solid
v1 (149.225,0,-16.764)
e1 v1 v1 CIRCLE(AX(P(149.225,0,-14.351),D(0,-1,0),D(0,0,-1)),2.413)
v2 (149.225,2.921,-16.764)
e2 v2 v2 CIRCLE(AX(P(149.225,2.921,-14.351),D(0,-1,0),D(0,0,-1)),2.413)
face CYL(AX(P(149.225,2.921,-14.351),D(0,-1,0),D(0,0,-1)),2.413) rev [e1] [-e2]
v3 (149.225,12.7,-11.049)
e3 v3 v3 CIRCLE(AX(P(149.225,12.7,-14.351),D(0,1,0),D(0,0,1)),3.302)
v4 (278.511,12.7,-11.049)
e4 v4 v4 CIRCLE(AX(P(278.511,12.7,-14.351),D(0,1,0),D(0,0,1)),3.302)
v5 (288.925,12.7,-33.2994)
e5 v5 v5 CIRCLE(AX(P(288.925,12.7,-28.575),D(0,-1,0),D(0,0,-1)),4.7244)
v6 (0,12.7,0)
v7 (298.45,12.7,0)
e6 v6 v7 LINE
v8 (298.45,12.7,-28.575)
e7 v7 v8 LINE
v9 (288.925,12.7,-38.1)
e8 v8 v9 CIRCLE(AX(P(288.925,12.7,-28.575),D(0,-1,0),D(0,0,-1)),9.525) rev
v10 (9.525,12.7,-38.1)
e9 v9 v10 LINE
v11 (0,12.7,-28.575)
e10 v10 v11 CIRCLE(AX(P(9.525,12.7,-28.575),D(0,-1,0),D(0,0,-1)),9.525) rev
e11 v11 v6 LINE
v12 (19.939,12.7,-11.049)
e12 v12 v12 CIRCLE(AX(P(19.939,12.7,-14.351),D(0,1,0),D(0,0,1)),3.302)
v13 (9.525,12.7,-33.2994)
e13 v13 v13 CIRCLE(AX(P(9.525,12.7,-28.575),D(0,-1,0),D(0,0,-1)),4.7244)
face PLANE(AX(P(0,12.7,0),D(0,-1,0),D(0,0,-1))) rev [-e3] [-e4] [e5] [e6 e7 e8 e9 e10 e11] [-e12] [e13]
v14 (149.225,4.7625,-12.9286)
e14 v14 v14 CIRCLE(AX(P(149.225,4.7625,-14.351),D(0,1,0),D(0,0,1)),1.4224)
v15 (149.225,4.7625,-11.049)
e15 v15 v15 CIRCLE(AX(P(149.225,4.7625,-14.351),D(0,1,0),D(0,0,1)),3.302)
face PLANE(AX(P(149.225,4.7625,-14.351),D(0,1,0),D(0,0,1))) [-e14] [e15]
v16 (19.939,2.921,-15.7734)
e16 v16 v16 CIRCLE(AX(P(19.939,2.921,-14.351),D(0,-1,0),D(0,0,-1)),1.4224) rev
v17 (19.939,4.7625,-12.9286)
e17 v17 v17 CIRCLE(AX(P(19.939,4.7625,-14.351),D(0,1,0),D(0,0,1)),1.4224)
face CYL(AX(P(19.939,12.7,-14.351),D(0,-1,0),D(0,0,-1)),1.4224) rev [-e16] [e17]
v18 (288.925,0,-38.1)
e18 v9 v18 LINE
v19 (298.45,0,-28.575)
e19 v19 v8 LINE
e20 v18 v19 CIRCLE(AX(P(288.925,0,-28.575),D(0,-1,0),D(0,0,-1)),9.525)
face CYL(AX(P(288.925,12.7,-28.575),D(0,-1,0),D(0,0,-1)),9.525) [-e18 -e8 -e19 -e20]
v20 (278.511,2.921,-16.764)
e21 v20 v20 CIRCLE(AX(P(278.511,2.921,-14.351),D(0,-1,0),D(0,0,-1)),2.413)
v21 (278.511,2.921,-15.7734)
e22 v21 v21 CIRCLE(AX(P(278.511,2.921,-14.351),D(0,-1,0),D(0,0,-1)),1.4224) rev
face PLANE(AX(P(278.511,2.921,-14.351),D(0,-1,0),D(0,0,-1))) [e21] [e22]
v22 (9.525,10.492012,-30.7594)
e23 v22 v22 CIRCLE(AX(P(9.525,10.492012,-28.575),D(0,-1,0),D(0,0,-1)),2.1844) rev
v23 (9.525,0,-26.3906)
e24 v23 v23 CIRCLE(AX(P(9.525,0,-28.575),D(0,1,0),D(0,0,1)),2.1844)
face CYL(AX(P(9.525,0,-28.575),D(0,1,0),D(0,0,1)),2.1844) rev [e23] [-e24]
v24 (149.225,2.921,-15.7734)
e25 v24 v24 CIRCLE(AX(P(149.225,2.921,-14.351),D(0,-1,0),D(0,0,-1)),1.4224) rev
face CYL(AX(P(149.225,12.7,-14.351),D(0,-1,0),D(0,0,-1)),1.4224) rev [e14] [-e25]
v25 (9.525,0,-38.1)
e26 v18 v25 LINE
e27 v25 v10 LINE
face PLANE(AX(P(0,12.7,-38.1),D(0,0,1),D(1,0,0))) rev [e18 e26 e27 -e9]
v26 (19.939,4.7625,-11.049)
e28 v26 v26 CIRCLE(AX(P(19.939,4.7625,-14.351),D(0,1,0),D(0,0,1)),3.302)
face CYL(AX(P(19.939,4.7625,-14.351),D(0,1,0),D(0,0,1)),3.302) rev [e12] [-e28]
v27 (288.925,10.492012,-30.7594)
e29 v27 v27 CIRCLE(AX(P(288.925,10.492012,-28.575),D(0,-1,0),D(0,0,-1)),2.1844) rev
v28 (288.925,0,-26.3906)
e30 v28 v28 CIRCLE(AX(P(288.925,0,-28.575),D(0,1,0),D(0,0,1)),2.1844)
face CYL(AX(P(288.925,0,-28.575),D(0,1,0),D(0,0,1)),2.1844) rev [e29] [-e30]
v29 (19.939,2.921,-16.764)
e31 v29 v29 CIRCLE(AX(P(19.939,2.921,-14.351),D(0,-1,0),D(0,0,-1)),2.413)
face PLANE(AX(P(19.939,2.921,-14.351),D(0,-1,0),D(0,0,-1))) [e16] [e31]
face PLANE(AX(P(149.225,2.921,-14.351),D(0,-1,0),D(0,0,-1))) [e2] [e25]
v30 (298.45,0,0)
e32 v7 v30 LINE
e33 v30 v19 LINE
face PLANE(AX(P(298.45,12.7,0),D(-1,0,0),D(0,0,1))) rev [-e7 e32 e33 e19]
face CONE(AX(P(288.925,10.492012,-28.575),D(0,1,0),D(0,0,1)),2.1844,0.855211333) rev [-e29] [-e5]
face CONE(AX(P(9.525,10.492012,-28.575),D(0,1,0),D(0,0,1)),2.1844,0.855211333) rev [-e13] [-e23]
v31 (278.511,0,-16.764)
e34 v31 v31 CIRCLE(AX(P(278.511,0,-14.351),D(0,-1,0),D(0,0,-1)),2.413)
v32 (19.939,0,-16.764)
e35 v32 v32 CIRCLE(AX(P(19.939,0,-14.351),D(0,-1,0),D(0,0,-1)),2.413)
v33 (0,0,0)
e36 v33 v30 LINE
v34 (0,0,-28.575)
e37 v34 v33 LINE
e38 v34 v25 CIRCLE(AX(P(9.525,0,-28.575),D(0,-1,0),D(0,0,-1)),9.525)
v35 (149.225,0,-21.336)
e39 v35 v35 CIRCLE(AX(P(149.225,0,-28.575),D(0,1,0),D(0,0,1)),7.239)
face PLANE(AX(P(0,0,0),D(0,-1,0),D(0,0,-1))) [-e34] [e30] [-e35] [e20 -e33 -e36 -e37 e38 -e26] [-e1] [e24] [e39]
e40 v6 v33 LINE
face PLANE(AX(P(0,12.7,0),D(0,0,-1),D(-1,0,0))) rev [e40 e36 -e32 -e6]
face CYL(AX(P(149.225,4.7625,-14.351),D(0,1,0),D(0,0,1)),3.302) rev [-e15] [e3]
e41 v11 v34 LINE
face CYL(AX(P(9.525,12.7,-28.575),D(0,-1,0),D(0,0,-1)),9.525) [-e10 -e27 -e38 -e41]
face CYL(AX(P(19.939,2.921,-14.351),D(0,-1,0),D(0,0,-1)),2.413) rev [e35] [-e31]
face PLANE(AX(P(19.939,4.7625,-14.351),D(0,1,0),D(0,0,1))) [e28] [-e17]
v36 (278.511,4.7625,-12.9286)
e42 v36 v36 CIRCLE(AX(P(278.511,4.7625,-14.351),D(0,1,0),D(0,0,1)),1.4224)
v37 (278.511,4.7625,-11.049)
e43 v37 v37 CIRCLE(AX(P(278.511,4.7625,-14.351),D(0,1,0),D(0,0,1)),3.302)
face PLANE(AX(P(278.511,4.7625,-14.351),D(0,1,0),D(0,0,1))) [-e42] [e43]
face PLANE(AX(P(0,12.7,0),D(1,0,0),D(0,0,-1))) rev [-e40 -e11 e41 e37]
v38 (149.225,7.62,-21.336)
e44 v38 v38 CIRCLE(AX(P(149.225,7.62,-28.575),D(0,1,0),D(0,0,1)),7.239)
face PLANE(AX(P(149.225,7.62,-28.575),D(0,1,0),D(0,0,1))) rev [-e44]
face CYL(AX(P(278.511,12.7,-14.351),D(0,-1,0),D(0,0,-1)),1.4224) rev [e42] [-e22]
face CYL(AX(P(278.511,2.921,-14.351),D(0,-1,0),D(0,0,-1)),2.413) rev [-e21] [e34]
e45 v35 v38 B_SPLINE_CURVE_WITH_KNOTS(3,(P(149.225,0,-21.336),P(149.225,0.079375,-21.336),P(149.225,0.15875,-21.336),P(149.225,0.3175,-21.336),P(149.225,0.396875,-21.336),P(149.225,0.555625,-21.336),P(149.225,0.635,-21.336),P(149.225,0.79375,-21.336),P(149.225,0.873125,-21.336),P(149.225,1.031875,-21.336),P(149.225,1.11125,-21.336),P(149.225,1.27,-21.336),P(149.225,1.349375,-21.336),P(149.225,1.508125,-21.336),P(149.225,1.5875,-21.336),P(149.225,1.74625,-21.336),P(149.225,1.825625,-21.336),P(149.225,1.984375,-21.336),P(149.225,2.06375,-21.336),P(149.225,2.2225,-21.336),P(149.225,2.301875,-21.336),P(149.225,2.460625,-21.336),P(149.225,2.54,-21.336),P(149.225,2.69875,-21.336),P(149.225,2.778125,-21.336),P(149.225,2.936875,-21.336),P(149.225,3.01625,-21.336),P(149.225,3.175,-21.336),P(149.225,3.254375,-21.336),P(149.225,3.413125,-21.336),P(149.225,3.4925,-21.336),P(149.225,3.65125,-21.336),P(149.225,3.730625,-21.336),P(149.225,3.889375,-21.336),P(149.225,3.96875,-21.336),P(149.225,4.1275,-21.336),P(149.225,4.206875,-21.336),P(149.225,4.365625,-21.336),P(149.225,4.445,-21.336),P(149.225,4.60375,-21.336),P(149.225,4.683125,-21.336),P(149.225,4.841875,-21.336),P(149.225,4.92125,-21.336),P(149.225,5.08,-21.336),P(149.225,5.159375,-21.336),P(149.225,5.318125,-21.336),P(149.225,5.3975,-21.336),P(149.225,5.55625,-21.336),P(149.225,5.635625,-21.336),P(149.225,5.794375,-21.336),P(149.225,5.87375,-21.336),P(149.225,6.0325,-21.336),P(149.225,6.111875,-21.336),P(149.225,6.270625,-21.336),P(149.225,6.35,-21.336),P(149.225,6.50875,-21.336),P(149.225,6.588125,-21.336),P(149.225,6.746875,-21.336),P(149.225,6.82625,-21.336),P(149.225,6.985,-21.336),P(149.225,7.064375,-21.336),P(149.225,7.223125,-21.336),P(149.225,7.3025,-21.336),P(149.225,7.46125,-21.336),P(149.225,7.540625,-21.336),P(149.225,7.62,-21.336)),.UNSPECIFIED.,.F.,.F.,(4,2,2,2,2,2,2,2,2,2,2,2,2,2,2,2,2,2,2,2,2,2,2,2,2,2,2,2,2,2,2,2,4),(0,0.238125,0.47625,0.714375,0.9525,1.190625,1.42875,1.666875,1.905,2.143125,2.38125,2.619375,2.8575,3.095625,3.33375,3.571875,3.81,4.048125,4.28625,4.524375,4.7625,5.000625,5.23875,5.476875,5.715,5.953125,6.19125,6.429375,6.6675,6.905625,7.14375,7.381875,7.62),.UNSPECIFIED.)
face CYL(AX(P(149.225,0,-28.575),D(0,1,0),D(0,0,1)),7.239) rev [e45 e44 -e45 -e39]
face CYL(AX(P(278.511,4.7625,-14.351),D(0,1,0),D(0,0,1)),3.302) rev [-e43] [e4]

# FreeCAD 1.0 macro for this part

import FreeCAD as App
import Part
import Sketcher
Q = App.Units.Quantity


def edges_at(feature, points):
    """Names of the edges that pass closest to the given points."""
    edges = feature.Shape.Edges
    near = lambda p: min(range(len(edges)), key=lambda i: edges[i].distToShape(Part.Vertex(*p))[0])
    return sorted({f"Edge{near(p) + 1}" for p in points})

doc = App.newDocument("Part")
body = doc.addObject("PartDesign::Body", "Body")

# Sketch on XZ plane
sketch1 = doc.addObject("Sketcher::SketchObject", "Sketch")
body.addObject(sketch1)
sketch1.AttachmentSupport = (doc.XZ_Plane, [""])
sketch1.MapMode = "FlatFace"
sketch1.addGeometry([
    Part.LineSegment(App.Vector(0, -38, 0), App.Vector(0, 0, 0)),
    Part.LineSegment(App.Vector(0, 0, 0), App.Vector(298, 0, 0)),
    Part.LineSegment(App.Vector(298, 0, 0), App.Vector(298, -38, 0)),
    Part.LineSegment(App.Vector(298, -38, 0), App.Vector(0, -38, 0)),
], False)
sketch1.addConstraint([
    Sketcher.Constraint("Coincident", 0, 2, 1, 1),
    Sketcher.Constraint("Coincident", 1, 2, 2, 1),
    Sketcher.Constraint("Coincident", 2, 2, 3, 1),
    Sketcher.Constraint("Coincident", 3, 2, 0, 1),
    Sketcher.Constraint("Vertical", 0),
    Sketcher.Constraint("Horizontal", 1),
    Sketcher.Constraint("Vertical", 2),
    Sketcher.Constraint("Horizontal", 3),
    Sketcher.Constraint("Coincident", 0, 2, -1, 1),
    Sketcher.Constraint("DistanceY", 0, 1, 0, 2, Q("1.5 in")),
    Sketcher.Constraint("DistanceX", 1, 1, 1, 2, Q("11.75 in")),
])
pad1 = doc.addObject("PartDesign::Pad", "Pad")
body.addObject(pad1)
pad1.Profile = sketch1
pad1.Length = Q("0.5 in")
pad1.Reversed = True
doc.recompute()

fillet = doc.addObject("PartDesign::Fillet", "Fillet")
body.addObject(fillet)
fillet.Base = (pad1, edges_at(pad1, [(0, 6.35, -38.1), (298.45, 6.35, -38.1)]))
fillet.Radius = Q("0.375 in")

# Sketch on XZ plane
sketch2 = doc.addObject("Sketcher::SketchObject", "Sketch001")
body.addObject(sketch2)
sketch2.AttachmentSupport = (doc.XZ_Plane, [""])
sketch2.MapMode = "FlatFace"
sketch2.AttachmentOffset = App.Placement(App.Vector(0, 0, -0.5 * 25.4), App.Rotation())
sketch2.addGeometry([
    Part.Circle(App.Vector(19.9, -14.4, 0), App.Vector(0, 0, 1), 3.3),
    Part.Circle(App.Vector(149.2, -14.4, 0), App.Vector(0, 0, 1), 3.3),
    Part.Circle(App.Vector(278.5, -14.4, 0), App.Vector(0, 0, 1), 3.3),
], False)
sketch2.addConstraint([
    Sketcher.Constraint("Equal", 0, 1),
    Sketcher.Constraint("Equal", 1, 2),
    Sketcher.Constraint("Horizontal", 0, 3, 1, 3),
    Sketcher.Constraint("Horizontal", 1, 3, 2, 3),
    Sketcher.Constraint("Diameter", 0, Q("0.26 in")),
    Sketcher.Constraint("DistanceX", 0, 3, 1, 3, Q("5.09 in")),
    Sketcher.Constraint("DistanceX", 1, 3, 2, 3, Q("5.09 in")),
    Sketcher.Constraint("DistanceX", -1, 1, 0, 3, Q("0.785 in")),
    Sketcher.Constraint("DistanceY", 0, 3, -1, 1, Q("0.565 in")),
])
pocket1 = doc.addObject("PartDesign::Pocket", "Pocket")
body.addObject(pocket1)
pocket1.Profile = sketch2
pocket1.Length = Q("0.3125 in")
pocket1.Reversed = True

# Sketch on XZ plane
sketch3 = doc.addObject("Sketcher::SketchObject", "Sketch002")
body.addObject(sketch3)
sketch3.AttachmentSupport = (doc.XZ_Plane, [""])
sketch3.MapMode = "FlatFace"
sketch3.addGeometry([
    Part.Circle(App.Vector(19.9, -14.4, 0), App.Vector(0, 0, 1), 1.4),
    Part.Circle(App.Vector(149.2, -14.4, 0), App.Vector(0, 0, 1), 1.4),
    Part.Circle(App.Vector(278.5, -14.4, 0), App.Vector(0, 0, 1), 1.4),
], False)
sketch3.addConstraint([
    Sketcher.Constraint("Equal", 0, 1),
    Sketcher.Constraint("Equal", 1, 2),
    Sketcher.Constraint("Horizontal", 0, 3, 1, 3),
    Sketcher.Constraint("Horizontal", 1, 3, 2, 3),
    Sketcher.Constraint("Diameter", 0, Q("0.112 in")),
    Sketcher.Constraint("DistanceX", 0, 3, 1, 3, Q("5.09 in")),
    Sketcher.Constraint("DistanceX", 1, 3, 2, 3, Q("5.09 in")),
    Sketcher.Constraint("DistanceX", -1, 1, 0, 3, Q("0.785 in")),
    Sketcher.Constraint("DistanceY", 0, 3, -1, 1, Q("0.565 in")),
])
pocket2 = doc.addObject("PartDesign::Pocket", "Pocket001")
body.addObject(pocket2)
pocket2.Profile = sketch3
pocket2.Type = "ThroughAll"

# Sketch on XZ plane
sketch4 = doc.addObject("Sketcher::SketchObject", "Sketch003")
body.addObject(sketch4)
sketch4.AttachmentSupport = (doc.XZ_Plane, [""])
sketch4.MapMode = "FlatFace"
sketch4.addGeometry([
    Part.Circle(App.Vector(19.9, -14.4, 0), App.Vector(0, 0, 1), 2.4),
    Part.Circle(App.Vector(149.2, -14.4, 0), App.Vector(0, 0, 1), 2.4),
    Part.Circle(App.Vector(278.5, -14.4, 0), App.Vector(0, 0, 1), 2.4),
], False)
sketch4.addConstraint([
    Sketcher.Constraint("Equal", 0, 1),
    Sketcher.Constraint("Equal", 1, 2),
    Sketcher.Constraint("Horizontal", 0, 3, 1, 3),
    Sketcher.Constraint("Horizontal", 1, 3, 2, 3),
    Sketcher.Constraint("Diameter", 0, Q("0.19 in")),
    Sketcher.Constraint("DistanceX", 0, 3, 1, 3, Q("5.09 in")),
    Sketcher.Constraint("DistanceX", 1, 3, 2, 3, Q("5.09 in")),
    Sketcher.Constraint("DistanceX", -1, 1, 0, 3, Q("0.785 in")),
    Sketcher.Constraint("DistanceY", 0, 3, -1, 1, Q("0.565 in")),
])
pocket3 = doc.addObject("PartDesign::Pocket", "Pocket002")
body.addObject(pocket3)
pocket3.Profile = sketch4
pocket3.Length = Q("0.115 in")

# Sketch on XZ plane
sketch5 = doc.addObject("Sketcher::SketchObject", "Sketch004")
body.addObject(sketch5)
sketch5.AttachmentSupport = (doc.XZ_Plane, [""])
sketch5.MapMode = "FlatFace"
sketch5.AttachmentOffset = App.Placement(App.Vector(0, 0, -0.5 * 25.4), App.Rotation())
sketch5.addGeometry([
    Part.Circle(App.Vector(288.9, -28.6, 0), App.Vector(0, 0, 1), 2.2),
    Part.Circle(App.Vector(9.5, -28.6, 0), App.Vector(0, 0, 1), 2.2),
], False)
sketch5.addConstraint([
    Sketcher.Constraint("Equal", 0, 1),
    Sketcher.Constraint("Horizontal", 0, 3, 1, 3),
    Sketcher.Constraint("Diameter", 0, Q("0.172 in")),
    Sketcher.Constraint("DistanceX", 1, 3, 0, 3, Q("11 in")),
    Sketcher.Constraint("DistanceX", -1, 1, 0, 3, Q("11.375 in")),
    Sketcher.Constraint("DistanceY", 0, 3, -1, 1, Q("1.125 in")),
])
pocket4 = doc.addObject("PartDesign::Pocket", "Pocket003")
body.addObject(pocket4)
pocket4.Profile = sketch5
pocket4.Type = "ThroughAll"
pocket4.Reversed = True
doc.recompute()

chamfer = doc.addObject("PartDesign::Chamfer", "Chamfer")
body.addObject(chamfer)
chamfer.Base = (pocket4, edges_at(pocket4, [(286.741, 12.7, -28.575), (9.525, 12.7, -30.759)]))
chamfer.ChamferType = "Two distances"
chamfer.Size = Q("0.1 in")
chamfer.Size2 = 2.207988

# Sketch on XZ plane
sketch6 = doc.addObject("Sketcher::SketchObject", "Sketch005")
body.addObject(sketch6)
sketch6.AttachmentSupport = (doc.XZ_Plane, [""])
sketch6.MapMode = "FlatFace"
sketch6.AttachmentOffset = App.Placement(App.Vector(0, 0, -0.3 * 25.4), App.Rotation())
sketch6.addGeometry(Part.Circle(App.Vector(149, -29, 0), App.Vector(0, 0, 1), 7), False)
sketch6.addConstraint([
    Sketcher.Constraint("Diameter", 0, Q("0.57 in")),
    Sketcher.Constraint("DistanceX", -1, 1, 0, 3, Q("5.875 in")),
    Sketcher.Constraint("DistanceY", 0, 3, -1, 1, Q("1.125 in")),
])
pocket5 = doc.addObject("PartDesign::Pocket", "Pocket004")
body.addObject(pocket5)
pocket5.Profile = sketch6
pocket5.Type = "ThroughAll"
pocket5.Reversed = True

doc.recompute()
